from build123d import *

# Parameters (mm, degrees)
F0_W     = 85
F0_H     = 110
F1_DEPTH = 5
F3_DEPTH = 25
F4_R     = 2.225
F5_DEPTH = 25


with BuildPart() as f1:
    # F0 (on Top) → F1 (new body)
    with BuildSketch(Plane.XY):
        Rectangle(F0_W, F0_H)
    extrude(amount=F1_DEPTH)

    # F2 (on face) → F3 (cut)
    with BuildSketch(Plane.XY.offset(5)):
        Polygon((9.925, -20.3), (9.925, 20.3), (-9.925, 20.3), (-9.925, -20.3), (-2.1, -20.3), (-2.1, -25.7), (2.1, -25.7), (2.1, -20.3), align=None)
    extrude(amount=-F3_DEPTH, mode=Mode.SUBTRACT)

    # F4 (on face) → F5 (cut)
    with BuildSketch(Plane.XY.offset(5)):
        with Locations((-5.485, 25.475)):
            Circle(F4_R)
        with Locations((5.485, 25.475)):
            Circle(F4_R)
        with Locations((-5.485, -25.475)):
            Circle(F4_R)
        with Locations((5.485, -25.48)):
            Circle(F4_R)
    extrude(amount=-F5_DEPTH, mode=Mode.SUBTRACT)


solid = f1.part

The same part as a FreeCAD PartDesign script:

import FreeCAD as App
import Part
import Sketcher

V = App.Vector


def add_polygon(sketch, points):
    """Adds a closed chain of lines whose ends are joined by coincident constraints."""
    first, n = sketch.GeometryCount, len(points)
    for a, b in zip(points, points[1:] + points[:1]):
        sketch.addGeometry(Part.LineSegment(App.Vector(*a, 0), App.Vector(*b, 0)), False)
    for i in range(n):
        sketch.addConstraint(Sketcher.Constraint("Coincident", first + i, 2, first + (i + 1) % n, 1))

doc = App.newDocument("Part")
body = doc.addObject("PartDesign::Body", "Body")

# Sketch on XY plane
sketch1 = body.newObject("Sketcher::SketchObject", "Sketch")
sketch1.AttachmentSupport = (doc.getObject("XY_Plane"), [""])
sketch1.MapMode = "FlatFace"
add_polygon(sketch1, [(-42, 55), (-42, -55), (42, -55), (42, 55)])  # lines 0-3
sketch1.addConstraint([
    Sketcher.Constraint("Vertical", 0),
    Sketcher.Constraint("Horizontal", 1),
    Sketcher.Constraint("Vertical", 2),
    Sketcher.Constraint("Horizontal", 3),
    Sketcher.Constraint("Symmetric", 0, 2, 2, 2, -1, 1),
    Sketcher.Constraint("DistanceX", 1, 1, 1, 2, 85.0),
    Sketcher.Constraint("DistanceY", 0, 2, 0, 1, 110.0),
])
pad1 = body.newObject("PartDesign::Pad", "Pad")
pad1.Profile = sketch1
pad1.Length = 5

# Sketch on XY plane
sketch2 = body.newObject("Sketcher::SketchObject", "Sketch001")
sketch2.AttachmentSupport = (doc.getObject("XY_Plane"), [""])
sketch2.MapMode = "FlatFace"
sketch2.AttachmentOffset = App.Placement(V(0, 0, 5), App.Rotation())
add_polygon(sketch2, [(9.9, -20.3), (9.9, 20.3), (-9.9, 20.3), (-9.9, -20.3), (-2.1, -20.3), (-2.1, -25.7), (2.1, -25.7), (2.1, -20.3)])  # lines 0-7
sketch2.addConstraint([
    Sketcher.Constraint("Vertical", 0),
    Sketcher.Constraint("Horizontal", 1),
    Sketcher.Constraint("Vertical", 2),
    Sketcher.Constraint("Horizontal", 3),
    Sketcher.Constraint("Vertical", 4),
    Sketcher.Constraint("Horizontal", 5),
    Sketcher.Constraint("Vertical", 6),
    Sketcher.Constraint("Horizontal", 7),
    Sketcher.Constraint("Symmetric", 0, 2, 2, 2, -1, 1),
    Sketcher.Constraint("Symmetric", 3, 2, 6, 2, -2),
    Sketcher.Constraint("DistanceX", 5, 1, 5, 2, 4.2),
    Sketcher.Constraint("DistanceY", 0, 1, 0, 2, 40.6),
    Sketcher.Constraint("DistanceY", 4, 2, 4, 1, 5.4),
    Sketcher.Constraint("DistanceX", 1, 2, 1, 1, 19.85),
])
pocket1 = body.newObject("PartDesign::Pocket", "Pocket")
pocket1.Profile = sketch2
pocket1.Length = 25

# Sketch on XY plane
sketch3 = body.newObject("Sketcher::SketchObject", "Sketch002")
sketch3.AttachmentSupport = (doc.getObject("XY_Plane"), [""])
sketch3.MapMode = "FlatFace"
sketch3.AttachmentOffset = App.Placement(V(0, 0, 5), App.Rotation())
sketch3.addGeometry([
    Part.Circle(V(-5.5, 25.5, 0), V(0, 0, 1), 2.2),
    Part.Circle(V(5.5, 25.5, 0), V(0, 0, 1), 2.2),
    Part.Circle(V(-5.5, -25.5, 0), V(0, 0, 1), 2.2),
    Part.Circle(V(5.5, -25.5, 0), V(0, 0, 1), 2.2),
], False)
sketch3.addConstraint([
    Sketcher.Constraint("Equal", 0, 1),
    Sketcher.Constraint("Equal", 1, 2),
    Sketcher.Constraint("Equal", 2, 3),
    Sketcher.Constraint("Symmetric", 1, 3, 2, 3, -1, 1),
    Sketcher.Constraint("Symmetric", 0, 3, 1, 3, -2),
    Sketcher.Constraint("Vertical", 1, 3, 3, 3),
    Sketcher.Constraint("Diameter", 0, 4.45),
    Sketcher.Constraint("DistanceY", 3, 3, -1, 1, 25.48),
    Sketcher.Constraint("DistanceX", 0, 3, 1, 3, 10.97),
    Sketcher.Constraint("DistanceY", 2, 3, 0, 3, 50.95),
])
pocket2 = body.newObject("PartDesign::Pocket", "Pocket001")
pocket2.Profile = sketch3
pocket2.Length = 25

doc.recompute()
